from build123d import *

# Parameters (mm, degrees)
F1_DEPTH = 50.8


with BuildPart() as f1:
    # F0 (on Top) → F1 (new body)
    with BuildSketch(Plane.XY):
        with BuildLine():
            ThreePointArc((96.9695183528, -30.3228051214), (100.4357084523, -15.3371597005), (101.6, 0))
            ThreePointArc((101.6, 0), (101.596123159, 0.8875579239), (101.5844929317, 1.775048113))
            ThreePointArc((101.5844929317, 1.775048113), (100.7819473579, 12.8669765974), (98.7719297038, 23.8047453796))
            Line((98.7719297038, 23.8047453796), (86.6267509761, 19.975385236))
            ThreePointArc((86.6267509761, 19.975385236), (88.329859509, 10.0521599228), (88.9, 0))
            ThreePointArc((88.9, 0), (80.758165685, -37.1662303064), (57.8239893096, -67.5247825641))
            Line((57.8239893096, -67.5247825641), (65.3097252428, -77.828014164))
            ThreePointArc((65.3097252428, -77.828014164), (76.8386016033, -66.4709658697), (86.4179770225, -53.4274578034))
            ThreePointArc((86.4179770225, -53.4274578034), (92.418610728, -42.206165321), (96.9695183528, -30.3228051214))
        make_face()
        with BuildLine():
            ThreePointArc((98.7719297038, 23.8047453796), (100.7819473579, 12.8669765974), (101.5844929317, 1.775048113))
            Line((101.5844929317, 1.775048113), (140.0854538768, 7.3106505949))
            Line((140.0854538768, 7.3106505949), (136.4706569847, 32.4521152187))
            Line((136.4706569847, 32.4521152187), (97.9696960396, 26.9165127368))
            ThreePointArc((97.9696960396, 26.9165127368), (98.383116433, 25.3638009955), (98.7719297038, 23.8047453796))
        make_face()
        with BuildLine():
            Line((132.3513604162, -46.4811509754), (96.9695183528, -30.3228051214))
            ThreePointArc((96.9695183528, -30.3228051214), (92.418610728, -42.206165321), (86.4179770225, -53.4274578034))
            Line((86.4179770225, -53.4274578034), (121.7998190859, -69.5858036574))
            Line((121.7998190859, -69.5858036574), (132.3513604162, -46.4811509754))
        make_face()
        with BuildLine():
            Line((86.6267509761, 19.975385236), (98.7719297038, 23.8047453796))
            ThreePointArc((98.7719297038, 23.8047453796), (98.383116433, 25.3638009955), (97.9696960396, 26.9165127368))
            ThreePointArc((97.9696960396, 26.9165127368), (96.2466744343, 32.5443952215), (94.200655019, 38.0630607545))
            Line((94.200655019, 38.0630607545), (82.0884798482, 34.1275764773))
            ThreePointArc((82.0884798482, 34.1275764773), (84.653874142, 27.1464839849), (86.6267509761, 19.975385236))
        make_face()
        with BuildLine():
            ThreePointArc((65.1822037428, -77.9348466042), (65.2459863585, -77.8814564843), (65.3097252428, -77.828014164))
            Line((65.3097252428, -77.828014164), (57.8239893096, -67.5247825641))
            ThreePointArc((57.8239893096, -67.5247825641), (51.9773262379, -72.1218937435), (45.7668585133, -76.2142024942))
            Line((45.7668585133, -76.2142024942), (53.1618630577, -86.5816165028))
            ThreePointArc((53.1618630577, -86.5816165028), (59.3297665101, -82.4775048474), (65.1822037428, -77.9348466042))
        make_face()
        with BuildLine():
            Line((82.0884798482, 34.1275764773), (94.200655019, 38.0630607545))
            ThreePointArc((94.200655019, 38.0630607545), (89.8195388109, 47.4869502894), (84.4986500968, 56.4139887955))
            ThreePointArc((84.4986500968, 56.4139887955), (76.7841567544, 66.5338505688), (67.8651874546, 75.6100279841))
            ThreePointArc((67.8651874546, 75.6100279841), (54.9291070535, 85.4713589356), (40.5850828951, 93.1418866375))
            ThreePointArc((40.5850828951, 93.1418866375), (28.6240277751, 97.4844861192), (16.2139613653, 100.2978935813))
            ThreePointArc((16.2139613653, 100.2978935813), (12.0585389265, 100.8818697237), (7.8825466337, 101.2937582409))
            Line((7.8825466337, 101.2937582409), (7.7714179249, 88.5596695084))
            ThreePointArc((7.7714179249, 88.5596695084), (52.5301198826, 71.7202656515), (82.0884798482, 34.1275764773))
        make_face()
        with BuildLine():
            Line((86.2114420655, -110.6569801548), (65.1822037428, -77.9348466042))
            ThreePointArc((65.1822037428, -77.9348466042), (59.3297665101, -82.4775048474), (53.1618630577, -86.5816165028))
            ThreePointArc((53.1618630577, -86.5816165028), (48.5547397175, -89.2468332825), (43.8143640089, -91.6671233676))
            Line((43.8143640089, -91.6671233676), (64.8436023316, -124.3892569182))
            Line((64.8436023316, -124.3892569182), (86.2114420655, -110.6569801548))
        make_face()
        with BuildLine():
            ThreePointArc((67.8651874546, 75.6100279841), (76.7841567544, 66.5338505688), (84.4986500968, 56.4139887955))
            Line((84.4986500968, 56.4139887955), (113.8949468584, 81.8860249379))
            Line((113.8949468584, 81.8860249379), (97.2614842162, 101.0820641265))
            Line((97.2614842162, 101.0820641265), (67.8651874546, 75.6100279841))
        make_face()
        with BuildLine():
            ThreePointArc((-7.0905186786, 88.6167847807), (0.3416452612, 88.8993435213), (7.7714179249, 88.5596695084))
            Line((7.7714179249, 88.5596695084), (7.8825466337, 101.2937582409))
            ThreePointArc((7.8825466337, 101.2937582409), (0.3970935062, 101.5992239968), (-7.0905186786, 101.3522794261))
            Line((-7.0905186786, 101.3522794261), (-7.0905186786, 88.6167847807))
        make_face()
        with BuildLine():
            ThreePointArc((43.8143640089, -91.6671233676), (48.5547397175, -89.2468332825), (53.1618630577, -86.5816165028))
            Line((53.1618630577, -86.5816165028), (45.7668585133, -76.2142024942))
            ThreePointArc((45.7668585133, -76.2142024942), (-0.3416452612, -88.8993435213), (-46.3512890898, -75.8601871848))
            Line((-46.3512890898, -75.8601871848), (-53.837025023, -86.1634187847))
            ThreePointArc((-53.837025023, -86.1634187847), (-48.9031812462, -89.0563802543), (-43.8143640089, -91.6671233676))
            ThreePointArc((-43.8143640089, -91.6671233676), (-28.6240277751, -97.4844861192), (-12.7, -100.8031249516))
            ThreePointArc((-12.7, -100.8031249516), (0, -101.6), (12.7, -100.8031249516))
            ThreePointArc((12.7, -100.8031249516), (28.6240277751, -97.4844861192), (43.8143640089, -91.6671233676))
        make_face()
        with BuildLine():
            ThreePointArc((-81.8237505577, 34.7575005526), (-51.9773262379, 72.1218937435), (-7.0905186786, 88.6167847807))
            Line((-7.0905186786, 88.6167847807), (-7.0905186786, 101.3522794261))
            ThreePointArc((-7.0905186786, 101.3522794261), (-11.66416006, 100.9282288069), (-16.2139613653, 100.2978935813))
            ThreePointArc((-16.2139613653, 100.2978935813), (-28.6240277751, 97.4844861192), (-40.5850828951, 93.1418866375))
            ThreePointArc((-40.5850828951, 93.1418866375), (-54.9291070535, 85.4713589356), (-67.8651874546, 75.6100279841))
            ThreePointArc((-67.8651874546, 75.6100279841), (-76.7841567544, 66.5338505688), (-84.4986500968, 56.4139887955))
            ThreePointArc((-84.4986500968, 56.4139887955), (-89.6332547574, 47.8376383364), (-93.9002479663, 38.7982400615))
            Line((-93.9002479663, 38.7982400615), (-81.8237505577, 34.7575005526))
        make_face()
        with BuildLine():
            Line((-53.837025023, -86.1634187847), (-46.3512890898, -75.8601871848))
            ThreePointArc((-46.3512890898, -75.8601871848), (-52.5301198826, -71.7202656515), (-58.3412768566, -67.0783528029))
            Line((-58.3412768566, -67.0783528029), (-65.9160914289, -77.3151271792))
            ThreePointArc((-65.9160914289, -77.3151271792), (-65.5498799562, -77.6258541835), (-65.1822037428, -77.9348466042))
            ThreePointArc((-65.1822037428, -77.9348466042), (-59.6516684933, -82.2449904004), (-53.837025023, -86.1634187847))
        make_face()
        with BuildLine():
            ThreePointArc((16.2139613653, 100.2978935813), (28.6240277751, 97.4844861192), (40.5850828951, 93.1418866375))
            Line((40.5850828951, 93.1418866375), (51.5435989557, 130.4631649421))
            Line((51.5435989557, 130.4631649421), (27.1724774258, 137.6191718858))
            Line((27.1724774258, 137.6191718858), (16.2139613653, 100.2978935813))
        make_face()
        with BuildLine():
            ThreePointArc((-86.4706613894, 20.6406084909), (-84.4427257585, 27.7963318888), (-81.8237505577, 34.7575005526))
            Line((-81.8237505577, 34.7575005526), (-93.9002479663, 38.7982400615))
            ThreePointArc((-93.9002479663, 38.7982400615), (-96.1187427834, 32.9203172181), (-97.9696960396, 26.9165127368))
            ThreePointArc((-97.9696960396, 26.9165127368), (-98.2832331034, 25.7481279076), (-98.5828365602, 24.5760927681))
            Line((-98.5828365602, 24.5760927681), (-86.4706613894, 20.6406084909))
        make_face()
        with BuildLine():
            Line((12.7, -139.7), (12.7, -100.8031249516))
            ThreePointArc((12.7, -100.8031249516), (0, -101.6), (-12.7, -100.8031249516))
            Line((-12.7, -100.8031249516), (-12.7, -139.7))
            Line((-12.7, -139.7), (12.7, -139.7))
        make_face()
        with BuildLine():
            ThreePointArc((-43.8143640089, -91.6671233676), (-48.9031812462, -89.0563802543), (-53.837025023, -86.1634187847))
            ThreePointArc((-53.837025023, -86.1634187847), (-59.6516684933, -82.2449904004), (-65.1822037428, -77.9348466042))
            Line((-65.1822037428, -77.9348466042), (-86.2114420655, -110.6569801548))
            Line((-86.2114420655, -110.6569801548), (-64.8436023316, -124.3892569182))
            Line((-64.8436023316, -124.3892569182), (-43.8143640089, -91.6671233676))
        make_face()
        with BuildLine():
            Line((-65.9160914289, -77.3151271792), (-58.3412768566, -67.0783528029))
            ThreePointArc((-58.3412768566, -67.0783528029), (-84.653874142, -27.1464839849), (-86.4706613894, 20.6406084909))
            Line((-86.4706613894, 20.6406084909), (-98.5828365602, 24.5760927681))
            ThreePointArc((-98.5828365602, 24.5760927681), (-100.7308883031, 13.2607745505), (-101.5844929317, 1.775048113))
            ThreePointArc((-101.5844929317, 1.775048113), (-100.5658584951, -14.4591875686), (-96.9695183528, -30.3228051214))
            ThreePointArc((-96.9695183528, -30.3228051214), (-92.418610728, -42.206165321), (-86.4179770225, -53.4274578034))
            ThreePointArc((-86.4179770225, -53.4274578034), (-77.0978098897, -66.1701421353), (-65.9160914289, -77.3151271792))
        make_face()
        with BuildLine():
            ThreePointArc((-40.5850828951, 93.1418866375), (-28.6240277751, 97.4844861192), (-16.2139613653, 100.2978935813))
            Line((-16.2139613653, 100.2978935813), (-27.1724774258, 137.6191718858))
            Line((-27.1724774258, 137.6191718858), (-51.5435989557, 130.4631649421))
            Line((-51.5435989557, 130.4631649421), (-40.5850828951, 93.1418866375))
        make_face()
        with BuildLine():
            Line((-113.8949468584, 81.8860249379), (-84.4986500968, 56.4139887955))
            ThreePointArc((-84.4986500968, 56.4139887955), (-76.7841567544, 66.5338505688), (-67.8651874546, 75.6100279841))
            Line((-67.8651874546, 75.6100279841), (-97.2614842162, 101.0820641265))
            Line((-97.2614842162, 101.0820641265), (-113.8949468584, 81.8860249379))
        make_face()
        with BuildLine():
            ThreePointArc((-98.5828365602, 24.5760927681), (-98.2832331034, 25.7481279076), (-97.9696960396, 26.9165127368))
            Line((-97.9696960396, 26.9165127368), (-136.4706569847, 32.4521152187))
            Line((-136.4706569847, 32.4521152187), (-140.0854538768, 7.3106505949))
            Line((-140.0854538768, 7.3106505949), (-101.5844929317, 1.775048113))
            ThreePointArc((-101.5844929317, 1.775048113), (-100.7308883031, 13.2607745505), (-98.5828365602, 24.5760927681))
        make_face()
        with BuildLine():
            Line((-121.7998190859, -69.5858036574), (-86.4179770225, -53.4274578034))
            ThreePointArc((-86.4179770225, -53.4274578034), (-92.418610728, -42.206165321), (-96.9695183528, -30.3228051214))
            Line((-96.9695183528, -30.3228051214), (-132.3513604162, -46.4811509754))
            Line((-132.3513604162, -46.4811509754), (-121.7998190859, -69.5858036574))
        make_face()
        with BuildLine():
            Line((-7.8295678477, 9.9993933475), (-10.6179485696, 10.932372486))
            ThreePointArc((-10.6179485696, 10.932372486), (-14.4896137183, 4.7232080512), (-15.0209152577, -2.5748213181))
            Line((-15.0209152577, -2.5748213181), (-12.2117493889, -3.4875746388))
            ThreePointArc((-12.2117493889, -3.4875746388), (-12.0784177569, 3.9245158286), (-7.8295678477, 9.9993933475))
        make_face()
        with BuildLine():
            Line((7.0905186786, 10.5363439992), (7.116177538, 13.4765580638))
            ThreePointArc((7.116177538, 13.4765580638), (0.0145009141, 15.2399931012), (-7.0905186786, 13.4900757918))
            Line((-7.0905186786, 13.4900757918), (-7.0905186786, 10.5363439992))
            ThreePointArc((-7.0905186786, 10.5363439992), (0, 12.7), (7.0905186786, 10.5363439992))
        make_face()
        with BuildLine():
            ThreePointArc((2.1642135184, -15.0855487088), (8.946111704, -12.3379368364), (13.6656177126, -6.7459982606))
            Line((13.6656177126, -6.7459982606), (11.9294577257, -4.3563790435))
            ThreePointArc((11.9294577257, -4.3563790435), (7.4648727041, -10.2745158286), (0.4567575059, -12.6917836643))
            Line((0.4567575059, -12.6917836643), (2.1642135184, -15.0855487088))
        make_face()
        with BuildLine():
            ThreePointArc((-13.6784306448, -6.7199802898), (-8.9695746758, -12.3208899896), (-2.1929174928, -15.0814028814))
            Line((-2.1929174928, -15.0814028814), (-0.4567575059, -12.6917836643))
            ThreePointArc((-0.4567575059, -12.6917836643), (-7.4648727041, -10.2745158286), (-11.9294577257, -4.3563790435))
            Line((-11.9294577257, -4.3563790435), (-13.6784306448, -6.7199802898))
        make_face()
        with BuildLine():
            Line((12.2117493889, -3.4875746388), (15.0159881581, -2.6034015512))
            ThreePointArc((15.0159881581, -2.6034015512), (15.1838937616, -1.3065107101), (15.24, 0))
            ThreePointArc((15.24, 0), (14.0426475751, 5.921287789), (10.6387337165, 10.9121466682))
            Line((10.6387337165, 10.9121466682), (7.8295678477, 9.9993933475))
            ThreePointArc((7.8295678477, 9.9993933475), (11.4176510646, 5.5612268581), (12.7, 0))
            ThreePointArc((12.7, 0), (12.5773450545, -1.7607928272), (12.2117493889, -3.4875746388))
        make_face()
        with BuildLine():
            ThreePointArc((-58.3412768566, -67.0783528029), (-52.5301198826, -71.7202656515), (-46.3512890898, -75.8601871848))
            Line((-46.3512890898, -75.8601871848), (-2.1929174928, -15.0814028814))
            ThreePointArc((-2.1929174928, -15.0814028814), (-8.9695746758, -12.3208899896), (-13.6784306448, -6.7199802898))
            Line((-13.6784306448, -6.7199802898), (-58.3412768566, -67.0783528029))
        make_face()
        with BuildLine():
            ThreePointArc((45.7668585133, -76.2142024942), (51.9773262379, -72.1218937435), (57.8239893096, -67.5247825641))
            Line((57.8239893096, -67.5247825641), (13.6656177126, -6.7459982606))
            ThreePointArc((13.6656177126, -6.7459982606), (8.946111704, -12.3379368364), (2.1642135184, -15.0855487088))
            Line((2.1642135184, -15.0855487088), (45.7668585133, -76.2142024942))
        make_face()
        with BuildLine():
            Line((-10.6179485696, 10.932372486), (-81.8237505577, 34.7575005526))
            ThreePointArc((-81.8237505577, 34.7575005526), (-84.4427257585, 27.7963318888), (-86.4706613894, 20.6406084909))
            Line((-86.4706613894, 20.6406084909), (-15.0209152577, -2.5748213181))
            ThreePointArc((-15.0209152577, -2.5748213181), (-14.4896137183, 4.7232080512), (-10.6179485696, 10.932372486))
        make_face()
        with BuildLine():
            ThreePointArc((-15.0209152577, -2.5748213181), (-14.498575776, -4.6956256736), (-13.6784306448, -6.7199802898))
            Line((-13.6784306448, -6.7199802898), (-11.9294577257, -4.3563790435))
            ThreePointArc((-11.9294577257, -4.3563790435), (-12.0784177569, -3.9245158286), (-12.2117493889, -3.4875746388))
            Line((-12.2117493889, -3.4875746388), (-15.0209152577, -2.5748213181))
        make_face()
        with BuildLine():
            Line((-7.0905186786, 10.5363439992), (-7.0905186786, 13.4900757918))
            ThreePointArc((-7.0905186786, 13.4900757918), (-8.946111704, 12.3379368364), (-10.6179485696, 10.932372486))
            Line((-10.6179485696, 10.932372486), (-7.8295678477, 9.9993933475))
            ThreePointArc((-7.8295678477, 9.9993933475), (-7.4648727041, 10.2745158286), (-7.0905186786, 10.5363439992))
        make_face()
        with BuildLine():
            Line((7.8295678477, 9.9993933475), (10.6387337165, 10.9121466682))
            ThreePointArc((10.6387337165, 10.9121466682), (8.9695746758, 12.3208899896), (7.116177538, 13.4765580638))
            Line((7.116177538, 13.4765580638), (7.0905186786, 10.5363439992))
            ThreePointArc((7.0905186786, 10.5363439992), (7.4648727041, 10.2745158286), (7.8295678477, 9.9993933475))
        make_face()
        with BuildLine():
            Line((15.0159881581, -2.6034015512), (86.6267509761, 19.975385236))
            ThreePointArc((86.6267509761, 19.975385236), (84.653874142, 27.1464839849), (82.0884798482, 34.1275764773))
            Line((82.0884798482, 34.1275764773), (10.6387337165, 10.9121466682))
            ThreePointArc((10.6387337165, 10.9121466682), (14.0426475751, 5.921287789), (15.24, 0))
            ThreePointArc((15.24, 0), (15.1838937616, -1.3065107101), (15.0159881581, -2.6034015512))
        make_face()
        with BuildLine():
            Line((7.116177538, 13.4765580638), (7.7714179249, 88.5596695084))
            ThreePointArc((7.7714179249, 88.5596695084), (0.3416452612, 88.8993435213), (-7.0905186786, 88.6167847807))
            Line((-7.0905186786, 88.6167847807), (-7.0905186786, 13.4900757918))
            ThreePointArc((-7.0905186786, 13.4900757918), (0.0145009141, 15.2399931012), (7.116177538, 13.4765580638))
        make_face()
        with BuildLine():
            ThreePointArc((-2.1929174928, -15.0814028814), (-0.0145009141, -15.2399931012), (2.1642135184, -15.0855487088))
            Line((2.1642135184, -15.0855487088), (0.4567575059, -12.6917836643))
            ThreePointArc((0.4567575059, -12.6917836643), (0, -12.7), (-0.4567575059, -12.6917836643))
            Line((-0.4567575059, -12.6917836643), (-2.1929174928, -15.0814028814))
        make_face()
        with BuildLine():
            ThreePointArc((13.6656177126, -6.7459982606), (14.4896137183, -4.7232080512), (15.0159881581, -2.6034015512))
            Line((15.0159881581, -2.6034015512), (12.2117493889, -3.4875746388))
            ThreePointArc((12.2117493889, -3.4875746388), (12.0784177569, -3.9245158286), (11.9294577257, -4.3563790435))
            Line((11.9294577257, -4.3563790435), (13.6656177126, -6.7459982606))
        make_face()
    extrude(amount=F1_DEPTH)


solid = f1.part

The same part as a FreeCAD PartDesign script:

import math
import FreeCAD as App
import Part
import Sketcher
from FreeCAD import Vector
Q = App.Units.Quantity

doc = App.newDocument("Part")
body = doc.addObject("PartDesign::Body", "Body")

# Sketch on XY plane
sketch1 = body.newObject("Sketcher::SketchObject", "Sketch")
sketch1.AttachmentSupport = (doc.getObject("XY_Plane"), [""])
sketch1.MapMode = "FlatFace"
sketch1.addGeometry([
    Part.ArcOfCircle(Part.Circle(Vector(0, 0, 0), Vector(0, 0, 1), 101.6), math.radians(-17.36), math.radians(0)),  # 0
    Part.ArcOfCircle(Part.Circle(Vector(0, 0, 0), Vector(0, 0, 1), 101.6), math.radians(0), math.radians(1)),  # 1
    Part.LineSegment(Vector(101.58, 1.78, 0), Vector(140.09, 7.31, 0)),  # 2
    Part.LineSegment(Vector(140.09, 7.31, 0), Vector(136.47, 32.45, 0)),  # 3
    Part.LineSegment(Vector(136.47, 32.45, 0), Vector(97.97, 26.92, 0)),  # 4
    Part.ArcOfCircle(Part.Circle(Vector(0, 0, 0), Vector(0, 0, 1), 101.6), math.radians(15.36), math.radians(22)),  # 5
    Part.ArcOfCircle(Part.Circle(Vector(0, 0, 0), Vector(0, 0, 1), 101.6), math.radians(22), math.radians(33.73)),  # 6
    Part.LineSegment(Vector(84.5, 56.41, 0), Vector(113.89, 81.89, 0)),  # 7
    Part.LineSegment(Vector(113.89, 81.89, 0), Vector(97.26, 101.08, 0)),  # 8
    Part.LineSegment(Vector(97.26, 101.08, 0), Vector(67.87, 75.61, 0)),  # 9
    Part.ArcOfCircle(Part.Circle(Vector(0, 0, 0), Vector(0, 0, 1), 101.6), math.radians(48.09), math.radians(66.46)),  # 10
    Part.LineSegment(Vector(40.59, 93.14, 0), Vector(51.54, 130.46, 0)),  # 11
    Part.LineSegment(Vector(51.54, 130.46, 0), Vector(27.17, 137.62, 0)),  # 12
    Part.LineSegment(Vector(27.17, 137.62, 0), Vector(16.21, 100.3, 0)),  # 13
    Part.ArcOfCircle(Part.Circle(Vector(0, 0, 0), Vector(0, 0, 1), 101.6), math.radians(80.82), math.radians(85.55)),  # 14
    Part.ArcOfCircle(Part.Circle(Vector(0, 0, 0), Vector(0, 0, 1), 101.6), math.radians(85.55), math.radians(94)),  # 15
    Part.ArcOfCircle(Part.Circle(Vector(0, 0, 0), Vector(0, 0, 1), 101.6), math.radians(94), math.radians(99.18)),  # 16
    Part.LineSegment(Vector(-16.21, 100.3, 0), Vector(-27.17, 137.62, 0)),  # 17
    Part.LineSegment(Vector(-27.17, 137.62, 0), Vector(-51.54, 130.46, 0)),  # 18
    Part.LineSegment(Vector(-51.54, 130.46, 0), Vector(-40.59, 93.14, 0)),  # 19
    Part.ArcOfCircle(Part.Circle(Vector(0, 0, 0), Vector(0, 0, 1), 101.6), math.radians(113.54), math.radians(131.91)),  # 20
    Part.LineSegment(Vector(-67.87, 75.61, 0), Vector(-97.26, 101.08, 0)),  # 21
    Part.LineSegment(Vector(-97.26, 101.08, 0), Vector(-113.89, 81.89, 0)),  # 22
    Part.LineSegment(Vector(-113.89, 81.89, 0), Vector(-84.5, 56.41, 0)),  # 23
    Part.ArcOfCircle(Part.Circle(Vector(0, 0, 0), Vector(0, 0, 1), 101.6), math.radians(146.27), math.radians(157.55)),  # 24
    Part.ArcOfCircle(Part.Circle(Vector(0, 0, 0), Vector(0, 0, 1), 101.6), math.radians(157.55), math.radians(164.64)),  # 25
    Part.LineSegment(Vector(-97.97, 26.92, 0), Vector(-136.47, 32.45, 0)),  # 26
    Part.LineSegment(Vector(-136.47, 32.45, 0), Vector(-140.09, 7.31, 0)),  # 27
    Part.LineSegment(Vector(-140.09, 7.31, 0), Vector(-101.58, 1.78, 0)),  # 28
    Part.ArcOfCircle(Part.Circle(Vector(0, 0, 0), Vector(0, 0, 1), 101.6), math.radians(179), math.radians(197.36)),  # 29
    Part.LineSegment(Vector(-96.97, -30.32, 0), Vector(-132.35, -46.48, 0)),  # 30
    Part.LineSegment(Vector(-132.35, -46.48, 0), Vector(-121.8, -69.59, 0)),  # 31
    Part.LineSegment(Vector(-121.8, -69.59, 0), Vector(-86.42, -53.43, 0)),  # 32
    Part.ArcOfCircle(Part.Circle(Vector(0, 0, 0), Vector(0, 0, 1), 101.6), math.radians(-148.27), math.radians(-130.45)),  # 33
    Part.ArcOfCircle(Part.Circle(Vector(0, 0, 0), Vector(0, 0, 1), 101.6), math.radians(-130.45), math.radians(-129.91)),  # 34
    Part.LineSegment(Vector(-65.18, -77.93, 0), Vector(-86.21, -110.66, 0)),  # 35
    Part.LineSegment(Vector(-86.21, -110.66, 0), Vector(-64.84, -124.39, 0)),  # 36
    Part.LineSegment(Vector(-64.84, -124.39, 0), Vector(-43.81, -91.67, 0)),  # 37
    Part.ArcOfCircle(Part.Circle(Vector(0, 0, 0), Vector(0, 0, 1), 101.6), math.radians(-115.55), math.radians(-97.18)),  # 38
    Part.LineSegment(Vector(-12.7, -100.8, 0), Vector(-12.7, -139.7, 0)),  # 39
    Part.LineSegment(Vector(-12.7, -139.7, 0), Vector(12.7, -139.7, 0)),  # 40
    Part.LineSegment(Vector(12.7, -139.7, 0), Vector(12.7, -100.8, 0)),  # 41
    Part.ArcOfCircle(Part.Circle(Vector(0, 0, 0), Vector(0, 0, 1), 101.6), math.radians(-82.82), math.radians(-64.45)),  # 42
    Part.LineSegment(Vector(43.81, -91.67, 0), Vector(64.84, -124.39, 0)),  # 43
    Part.LineSegment(Vector(64.84, -124.39, 0), Vector(86.21, -110.66, 0)),  # 44
    Part.LineSegment(Vector(86.21, -110.66, 0), Vector(65.18, -77.93, 0)),  # 45
    Part.ArcOfCircle(Part.Circle(Vector(0, 0, 0), Vector(0, 0, 1), 101.6), math.radians(-50.09), math.radians(-50)),  # 46
    Part.ArcOfCircle(Part.Circle(Vector(0, 0, 0), Vector(0, 0, 1), 101.6), math.radians(-50), math.radians(-31.73)),  # 47
    Part.LineSegment(Vector(86.42, -53.43, 0), Vector(121.8, -69.59, 0)),  # 48
    Part.LineSegment(Vector(121.8, -69.59, 0), Vector(132.35, -46.48, 0)),  # 49
    Part.LineSegment(Vector(132.35, -46.48, 0), Vector(96.97, -30.32, 0)),  # 50
    Part.ArcOfCircle(Part.Circle(Vector(0, 0, 0), Vector(0, 0, 1), 88.9), math.radians(95), math.radians(157)),  # 51
    Part.LineSegment(Vector(-7.09, 88.62, 0), Vector(-7.09, 13.49, 0)),  # 52
    Part.ArcOfCircle(Part.Circle(Vector(0, 0, 0), Vector(0, 0, 1), 15.24), math.radians(117.73), math.radians(134.16)),  # 53
    Part.LineSegment(Vector(-10.62, 10.93, 0), Vector(-81.82, 34.76, 0)),  # 54
    Part.ArcOfCircle(Part.Circle(Vector(0, 0, 0), Vector(0, 0, 1), 88.9), math.radians(23), math.radians(85)),  # 55
    Part.LineSegment(Vector(82.09, 34.13, 0), Vector(10.64, 10.91, 0)),  # 56
    Part.ArcOfCircle(Part.Circle(Vector(0, 0, 0), Vector(0, 0, 1), 15.24), math.radians(45.73), math.radians(62.16)),  # 57
    Part.LineSegment(Vector(7.12, 13.48, 0), Vector(7.77, 88.56, 0)),  # 58
    Part.ArcOfCircle(Part.Circle(Vector(0, 0, 0), Vector(0, 0, 1), 88.9), math.radians(0), math.radians(12.98)),  # 59
    Part.ArcOfCircle(Part.Circle(Vector(0, 0, 0), Vector(0, 0, 1), 88.9), math.radians(-49), math.radians(0)),  # 60
    Part.LineSegment(Vector(57.82, -67.52, 0), Vector(13.67, -6.75, 0)),  # 61
    Part.ArcOfCircle(Part.Circle(Vector(0, 0, 0), Vector(0, 0, 1), 15.24), math.radians(-26.27), math.radians(-9.84)),  # 62
    Part.LineSegment(Vector(15.02, -2.6, 0), Vector(86.63, 19.98, 0)),  # 63
    Part.ArcOfCircle(Part.Circle(Vector(0, 0, 0), Vector(0, 0, 1), 12.7), math.radians(-88), math.radians(-20)),  # 64
    Part.ArcOfCircle(Part.Circle(Vector(0, 0, 0), Vector(0, 0, 1), 12.7), math.radians(-92.06), math.radians(-87.94)),  # 65
    Part.ArcOfCircle(Part.Circle(Vector(0, 0, 0), Vector(0, 0, 1), 12.7), math.radians(-160), math.radians(-92)),  # 66
    Part.ArcOfCircle(Part.Circle(Vector(0, 0, 0), Vector(0, 0, 1), 12.7), math.radians(-164.06), math.radians(-159.94)),  # 67
    Part.ArcOfCircle(Part.Circle(Vector(0, 0, 0), Vector(0, 0, 1), 12.7), math.radians(128), math.radians(196)),  # 68
    Part.ArcOfCircle(Part.Circle(Vector(0, 0, 0), Vector(0, 0, 1), 12.7), math.radians(123.94), math.radians(128.06)),  # 69
    Part.ArcOfCircle(Part.Circle(Vector(0, 0, 0), Vector(0, 0, 1), 12.7), math.radians(56), math.radians(124)),  # 70
    Part.ArcOfCircle(Part.Circle(Vector(0, 0, 0), Vector(0, 0, 1), 12.7), math.radians(51.94), math.radians(56.06)),  # 71
    Part.ArcOfCircle(Part.Circle(Vector(0, 0, 0), Vector(0, 0, 1), 12.7), math.radians(0), math.radians(52)),  # 72
    Part.ArcOfCircle(Part.Circle(Vector(0, 0, 0), Vector(0, 0, 1), 12.7), math.radians(-15.94), math.radians(0)),  # 73
    Part.ArcOfCircle(Part.Circle(Vector(0, 0, 0), Vector(0, 0, 1), 12.7), math.radians(-20.06), math.radians(-15.94)),  # 74
    Part.LineSegment(Vector(2.16, -15.09, 0), Vector(45.77, -76.21, 0)),  # 75
    Part.ArcOfCircle(Part.Circle(Vector(0, 0, 0), Vector(0, 0, 1), 88.9), math.radians(-121), math.radians(-59)),  # 76
    Part.LineSegment(Vector(-46.35, -75.86, 0), Vector(-2.19, -15.08, 0)),  # 77
    Part.ArcOfCircle(Part.Circle(Vector(0, 0, 0), Vector(0, 0, 1), 15.24), math.radians(-98.27), math.radians(-81.84)),  # 78
    Part.LineSegment(Vector(-13.68, -6.72, 0), Vector(-58.34, -67.08, 0)),  # 79
    Part.ArcOfCircle(Part.Circle(Vector(0, 0, 0), Vector(0, 0, 1), 88.9), math.radians(167), math.radians(229)),  # 80
    Part.LineSegment(Vector(-86.47, 20.64, 0), Vector(-15.02, -2.57, 0)),  # 81
    Part.ArcOfCircle(Part.Circle(Vector(0, 0, 0), Vector(0, 0, 1), 15.24), math.radians(-170.27), math.radians(-153.84)),  # 82
], False)
sketch1.addConstraint([
    Sketcher.Constraint("Tangent", 0, 2, 1, 1),
    Sketcher.Constraint("Coincident", 1, 2, 2, 1),
    Sketcher.Constraint("Coincident", 2, 2, 3, 1),
    Sketcher.Constraint("Coincident", 3, 2, 4, 1),
    Sketcher.Constraint("Coincident", 4, 2, 5, 1),
    Sketcher.Constraint("Tangent", 5, 2, 6, 1),
    Sketcher.Constraint("Coincident", 6, 2, 7, 1),
    Sketcher.Constraint("Coincident", 7, 2, 8, 1),
    Sketcher.Constraint("Coincident", 8, 2, 9, 1),
    Sketcher.Constraint("Coincident", 9, 2, 10, 1),
    Sketcher.Constraint("Coincident", 10, 2, 11, 1),
    Sketcher.Constraint("Coincident", 11, 2, 12, 1),
    Sketcher.Constraint("Coincident", 12, 2, 13, 1),
    Sketcher.Constraint("Coincident", 13, 2, 14, 1),
    Sketcher.Constraint("Tangent", 14, 2, 15, 1),
    Sketcher.Constraint("Tangent", 15, 2, 16, 1),
    Sketcher.Constraint("Coincident", 16, 2, 17, 1),
    Sketcher.Constraint("Coincident", 17, 2, 18, 1),
    Sketcher.Constraint("Coincident", 18, 2, 19, 1),
    Sketcher.Constraint("Coincident", 19, 2, 20, 1),
    Sketcher.Constraint("Coincident", 20, 2, 21, 1),
    Sketcher.Constraint("Coincident", 21, 2, 22, 1),
    Sketcher.Constraint("Coincident", 22, 2, 23, 1),
    Sketcher.Constraint("Coincident", 23, 2, 24, 1),
    Sketcher.Constraint("Tangent", 24, 2, 25, 1),
    Sketcher.Constraint("Coincident", 25, 2, 26, 1),
    Sketcher.Constraint("Coincident", 26, 2, 27, 1),
    Sketcher.Constraint("Coincident", 27, 2, 28, 1),
    Sketcher.Constraint("Coincident", 28, 2, 29, 1),
    Sketcher.Constraint("Coincident", 29, 2, 30, 1),
    Sketcher.Constraint("Coincident", 30, 2, 31, 1),
    Sketcher.Constraint("Coincident", 31, 2, 32, 1),
    Sketcher.Constraint("Coincident", 32, 2, 33, 1),
    Sketcher.Constraint("Tangent", 33, 2, 34, 1),
    Sketcher.Constraint("Coincident", 34, 2, 35, 1),
    Sketcher.Constraint("Coincident", 35, 2, 36, 1),
    Sketcher.Constraint("Coincident", 36, 2, 37, 1),
    Sketcher.Constraint("Coincident", 37, 2, 38, 1),
    Sketcher.Constraint("Coincident", 38, 2, 39, 1),
    Sketcher.Constraint("Coincident", 39, 2, 40, 1),
    Sketcher.Constraint("Coincident", 40, 2, 41, 1),
    Sketcher.Constraint("Coincident", 41, 2, 42, 1),
    Sketcher.Constraint("Coincident", 42, 2, 43, 1),
    Sketcher.Constraint("Coincident", 43, 2, 44, 1),
    Sketcher.Constraint("Coincident", 44, 2, 45, 1),
    Sketcher.Constraint("Coincident", 45, 2, 46, 1),
    Sketcher.Constraint("Tangent", 46, 2, 47, 1),
    Sketcher.Constraint("Coincident", 47, 2, 48, 1),
    Sketcher.Constraint("Coincident", 48, 2, 49, 1),
    Sketcher.Constraint("Coincident", 49, 2, 50, 1),
    Sketcher.Constraint("Coincident", 50, 2, 0, 1),
    Sketcher.Constraint("Coincident", 51, 1, 52, 1),
    Sketcher.Constraint("Coincident", 52, 2, 53, 1),
    Sketcher.Constraint("Coincident", 53, 2, 54, 1),
    Sketcher.Constraint("Coincident", 54, 2, 51, 2),
    Sketcher.Constraint("Coincident", 55, 1, 56, 1),
    Sketcher.Constraint("Coincident", 56, 2, 57, 1),
    Sketcher.Constraint("Coincident", 57, 2, 58, 1),
    Sketcher.Constraint("Coincident", 58, 2, 55, 2),
    Sketcher.Constraint("Tangent", 59, 1, 60, 2),
    Sketcher.Constraint("Coincident", 60, 1, 61, 1),
    Sketcher.Constraint("Coincident", 61, 2, 62, 1),
    Sketcher.Constraint("Coincident", 62, 2, 63, 1),
    Sketcher.Constraint("Coincident", 63, 2, 59, 2),
    Sketcher.Constraint("Tangent", 64, 1, 65, 2),
    Sketcher.Constraint("Tangent", 65, 1, 66, 2),
    Sketcher.Constraint("Tangent", 66, 1, 67, 2),
    Sketcher.Constraint("Tangent", 67, 1, 68, 2),
    Sketcher.Constraint("Tangent", 68, 1, 69, 2),
    Sketcher.Constraint("Tangent", 69, 1, 70, 2),
    Sketcher.Constraint("Tangent", 70, 1, 71, 2),
    Sketcher.Constraint("Tangent", 71, 1, 72, 2),
    Sketcher.Constraint("Tangent", 72, 1, 73, 2),
    Sketcher.Constraint("Tangent", 73, 1, 74, 2),
    Sketcher.Constraint("Tangent", 74, 1, 64, 2),
    Sketcher.Constraint("Coincident", 75, 2, 76, 2),
    Sketcher.Constraint("Coincident", 76, 1, 77, 1),
    Sketcher.Constraint("Coincident", 77, 2, 78, 1),
    Sketcher.Constraint("Coincident", 78, 2, 75, 1),
    Sketcher.Constraint("Coincident", 79, 2, 80, 2),
    Sketcher.Constraint("Coincident", 80, 1, 81, 1),
    Sketcher.Constraint("Coincident", 81, 2, 82, 1),
    Sketcher.Constraint("Coincident", 82, 2, 79, 1),
    Sketcher.Constraint("Vertical", 39),
    Sketcher.Constraint("Horizontal", 40),
    Sketcher.Constraint("Vertical", 41),
    Sketcher.Constraint("Vertical", 52),
    Sketcher.Constraint("Coincident", 0, 3, -1, 1),
    Sketcher.Constraint("Coincident", 5, 3, -1, 1),
    Sketcher.Constraint("Coincident", 10, 3, -1, 1),
    Sketcher.Constraint("Coincident", 14, 3, -1, 1),
    Sketcher.Constraint("Coincident", 16, 3, -1, 1),
    Sketcher.Constraint("Coincident", 20, 3, -1, 1),
    Sketcher.Constraint("Coincident", 24, 3, -1, 1),
    Sketcher.Constraint("Coincident", 29, 3, -1, 1),
    Sketcher.Constraint("Coincident", 33, 3, -1, 1),
    Sketcher.Constraint("Coincident", 38, 3, -1, 1),
    Sketcher.Constraint("Coincident", 42, 3, -1, 1),
    Sketcher.Constraint("Coincident", 47, 3, -1, 1),
    Sketcher.Constraint("Coincident", 51, 3, -1, 1),
    Sketcher.Constraint("Coincident", 53, 3, -1, 1),
    Sketcher.Constraint("Coincident", 55, 3, -1, 1),
    Sketcher.Constraint("Coincident", 57, 3, -1, 1),
    Sketcher.Constraint("Coincident", 59, 3, -1, 1),
    Sketcher.Constraint("Coincident", 62, 3, -1, 1),
    Sketcher.Constraint("Coincident", 64, 3, -1, 1),
    Sketcher.Constraint("Coincident", 66, 3, -1, 1),
    Sketcher.Constraint("Coincident", 68, 3, -1, 1),
    Sketcher.Constraint("Coincident", 70, 3, -1, 1),
    Sketcher.Constraint("Coincident", 72, 3, -1, 1),
    Sketcher.Constraint("Coincident", 76, 3, -1, 1),
    Sketcher.Constraint("Coincident", 78, 3, -1, 1),
    Sketcher.Constraint("Coincident", 80, 3, -1, 1),
    Sketcher.Constraint("Coincident", 82, 3, -1, 1),
    Sketcher.Constraint("Equal", 0, 1),
    Sketcher.Constraint("Equal", 1, 5),
    Sketcher.Constraint("Equal", 5, 6),
    Sketcher.Constraint("Equal", 6, 10),
    Sketcher.Constraint("Equal", 10, 14),
    Sketcher.Constraint("Equal", 16, 20),
    Sketcher.Constraint("Equal", 20, 24),
    Sketcher.Constraint("Equal", 24, 25),
    Sketcher.Constraint("Equal", 25, 29),
    Sketcher.Constraint("Equal", 29, 33),
    Sketcher.Constraint("Equal", 33, 34),
    Sketcher.Constraint("Equal", 34, 38),
    Sketcher.Constraint("Equal", 38, 42),
    Sketcher.Constraint("Equal", 42, 47),
    Sketcher.Constraint("Equal", 51, 55),
    Sketcher.Constraint("Equal", 53, 57),
    Sketcher.Constraint("Equal", 55, 59),
    Sketcher.Constraint("Equal", 59, 60),
    Sketcher.Constraint("Equal", 57, 62),
    Sketcher.Constraint("Equal", 60, 76),
    Sketcher.Constraint("Equal", 62, 78),
    Sketcher.Constraint("Equal", 76, 80),
    Sketcher.Constraint("Equal", 78, 82),
    Sketcher.Constraint("Symmetric", 12, 2, 17, 2, -2),
    Sketcher.Constraint("Symmetric", 11, 2, 18, 2, -2),
    Sketcher.Constraint("Symmetric", 8, 2, 21, 2, -2),
    Sketcher.Constraint("Symmetric", 7, 2, 22, 2, -2),
    Sketcher.Constraint("Symmetric", 3, 2, 26, 2, -2),
    Sketcher.Constraint("Symmetric", 2, 2, 27, 2, -2),
    Sketcher.Constraint("Symmetric", 36, 2, 43, 2, -2),
    Sketcher.Constraint("Symmetric", 35, 2, 44, 2, -2),
    Sketcher.Constraint("Symmetric", 31, 2, 48, 2, -2),
    Sketcher.Constraint("Symmetric", 30, 2, 49, 2, -2),
    Sketcher.Constraint("PointOnObject", 0, 2, -1),
    Sketcher.Constraint("PointOnObject", 59, 1, -1),
    Sketcher.Constraint("PointOnObject", 72, 1, -1),
    Sketcher.Constraint("Perpendicular", 2, 3),
    Sketcher.Constraint("Perpendicular", 3, 4),
    Sketcher.Constraint("Perpendicular", 7, 8),
    Sketcher.Constraint("Perpendicular", 8, 9),
    Sketcher.Constraint("Perpendicular", 11, 12),
    Sketcher.Constraint("Perpendicular", 12, 13),
    Sketcher.Constraint("Perpendicular", 17, 18),
    Sketcher.Constraint("Perpendicular", 18, 19),
    Sketcher.Constraint("Perpendicular", 21, 22),
    Sketcher.Constraint("Perpendicular", 22, 23),
    Sketcher.Constraint("Perpendicular", 26, 27),
    Sketcher.Constraint("Perpendicular", 27, 28),
    Sketcher.Constraint("Perpendicular", 30, 31),
    Sketcher.Constraint("Perpendicular", 31, 32),
    Sketcher.Constraint("Perpendicular", 35, 36),
    Sketcher.Constraint("Perpendicular", 36, 37),
    Sketcher.Constraint("Perpendicular", 43, 44),
    Sketcher.Constraint("Perpendicular", 44, 45),
    Sketcher.Constraint("Perpendicular", 48, 49),
    Sketcher.Constraint("Perpendicular", 49, 50),
    Sketcher.Constraint("Horizontal", 38, 2, 41, 2),
    Sketcher.Constraint("Horizontal", 64, 1, 65, 1),
    Sketcher.Constraint("Horizontal", 69, 1, 70, 1),
    Sketcher.Constraint("Horizontal", 68, 1, 71, 1),
    Sketcher.Constraint("Horizontal", 67, 1, 73, 1),
    Sketcher.Constraint("Horizontal", 66, 1, 74, 1),
    Sketcher.Constraint("Vertical", 15, 2, 51, 1),
    Sketcher.Constraint("Vertical", 52, 2, 69, 1),
    Sketcher.Constraint("Vertical", 41, 2, 72, 1),
    Sketcher.Constraint("Equal", 2, 4),
    Sketcher.Constraint("Equal", 4, 7),
    Sketcher.Constraint("Equal", 3, 8),
    Sketcher.Constraint("Equal", 7, 9),
    Sketcher.Constraint("Equal", 9, 11),
    Sketcher.Constraint("Equal", 8, 12),
    Sketcher.Constraint("Equal", 11, 13),
    Sketcher.Constraint("Equal", 28, 30),
    Sketcher.Constraint("Equal", 27, 31),
    Sketcher.Constraint("Equal", 30, 32),
    Sketcher.Constraint("Equal", 32, 35),
    Sketcher.Constraint("Equal", 31, 36),
    Sketcher.Constraint("Equal", 35, 37),
    Sketcher.Constraint("Equal", 54, 58),
    Sketcher.Constraint("Equal", 56, 61),
    Sketcher.Constraint("Equal", 58, 63),
    Sketcher.Constraint("Equal", 63, 75),
    Sketcher.Constraint("Equal", 61, 77),
    Sketcher.Constraint("Equal", 75, 79),
    Sketcher.Constraint("Equal", 77, 81),
    Sketcher.Constraint("Radius", 0, Q("4 in")),
    Sketcher.Constraint("Radius", 51, Q("3.5 in")),
    Sketcher.Constraint("Radius", 53, Q("0.6 in")),
    Sketcher.Constraint("Radius", 64, Q("0.5 in")),
    Sketcher.Constraint("Distance", 3, Q("1 in")),
    Sketcher.Constraint("Angle", 56, Q("-162 deg")),
    Sketcher.Constraint("Angle", 61, Q("126 deg")),
    Sketcher.Constraint("Angle", 77, Q("54 deg")),
    Sketcher.Constraint("Angle", 81, Q("-18 deg")),
    Sketcher.Constraint("DistanceY", 39, 2, -1, 1, Q("5.5 in")),
    Sketcher.Constraint("Angle", 54, Q("161.5 deg")),
    Sketcher.Constraint("Angle", 58, Q("89.5 deg")),
    Sketcher.Constraint("Angle", 63, Q("17.5 deg")),
    Sketcher.Constraint("Angle", 75, Q("-54.5 deg")),
    Sketcher.Constraint("Angle", 79, Q("-126.5 deg")),
    Sketcher.Constraint("Radius", 46, 101.599787),
    Sketcher.Constraint("DistanceY", 52, 2, 52, 1, 75.126709),
    Sketcher.Constraint("DistanceX", -1, 1, 11, 2, 51.543599),
    Sketcher.Constraint("DistanceY", -1, 1, 54, 2, 34.757501),
    Sketcher.Constraint("DistanceY", 61, 2, -1, 1, 6.745998),
    Sketcher.Constraint("DistanceY", -1, 1, 1, 2, 1.775048),
    Sketcher.Constraint("DistanceY", -1, 1, 2, 2, 7.310651),
    Sketcher.Constraint("DistanceY", -1, 1, 5, 2, 38.063061),
    Sketcher.Constraint("DistanceX", -1, 1, 6, 2, 84.49865),
    Sketcher.Constraint("DistanceY", -1, 1, 14, 2, 101.293758),
    Sketcher.Constraint("DistanceY", -1, 1, 24, 2, 38.79824),
    Sketcher.Constraint("DistanceX", 29, 2, -1, 1, 96.969518),
    Sketcher.Constraint("DistanceX", 33, 2, -1, 1, 65.916091),
    Sketcher.Constraint("DistanceY", 35, 2, -1, 1, 110.65698),
    Sketcher.Constraint("DistanceY", 66, 1, -1, 1, 4.356379),
    Sketcher.Constraint("DistanceX", 67, 1, -1, 1, 12.211749),
    Sketcher.Constraint("DistanceX", -1, 1, 46, 2, 65.309725),
    Sketcher.Constraint("DistanceX", -1, 1, 64, 1, 0.456758),
    Sketcher.Constraint("DistanceX", 68, 1, -1, 1, 7.829568),
])
pad1 = body.newObject("PartDesign::Pad", "Pad")
pad1.Profile = sketch1
pad1.Length = Q("2 in")

doc.recompute()
